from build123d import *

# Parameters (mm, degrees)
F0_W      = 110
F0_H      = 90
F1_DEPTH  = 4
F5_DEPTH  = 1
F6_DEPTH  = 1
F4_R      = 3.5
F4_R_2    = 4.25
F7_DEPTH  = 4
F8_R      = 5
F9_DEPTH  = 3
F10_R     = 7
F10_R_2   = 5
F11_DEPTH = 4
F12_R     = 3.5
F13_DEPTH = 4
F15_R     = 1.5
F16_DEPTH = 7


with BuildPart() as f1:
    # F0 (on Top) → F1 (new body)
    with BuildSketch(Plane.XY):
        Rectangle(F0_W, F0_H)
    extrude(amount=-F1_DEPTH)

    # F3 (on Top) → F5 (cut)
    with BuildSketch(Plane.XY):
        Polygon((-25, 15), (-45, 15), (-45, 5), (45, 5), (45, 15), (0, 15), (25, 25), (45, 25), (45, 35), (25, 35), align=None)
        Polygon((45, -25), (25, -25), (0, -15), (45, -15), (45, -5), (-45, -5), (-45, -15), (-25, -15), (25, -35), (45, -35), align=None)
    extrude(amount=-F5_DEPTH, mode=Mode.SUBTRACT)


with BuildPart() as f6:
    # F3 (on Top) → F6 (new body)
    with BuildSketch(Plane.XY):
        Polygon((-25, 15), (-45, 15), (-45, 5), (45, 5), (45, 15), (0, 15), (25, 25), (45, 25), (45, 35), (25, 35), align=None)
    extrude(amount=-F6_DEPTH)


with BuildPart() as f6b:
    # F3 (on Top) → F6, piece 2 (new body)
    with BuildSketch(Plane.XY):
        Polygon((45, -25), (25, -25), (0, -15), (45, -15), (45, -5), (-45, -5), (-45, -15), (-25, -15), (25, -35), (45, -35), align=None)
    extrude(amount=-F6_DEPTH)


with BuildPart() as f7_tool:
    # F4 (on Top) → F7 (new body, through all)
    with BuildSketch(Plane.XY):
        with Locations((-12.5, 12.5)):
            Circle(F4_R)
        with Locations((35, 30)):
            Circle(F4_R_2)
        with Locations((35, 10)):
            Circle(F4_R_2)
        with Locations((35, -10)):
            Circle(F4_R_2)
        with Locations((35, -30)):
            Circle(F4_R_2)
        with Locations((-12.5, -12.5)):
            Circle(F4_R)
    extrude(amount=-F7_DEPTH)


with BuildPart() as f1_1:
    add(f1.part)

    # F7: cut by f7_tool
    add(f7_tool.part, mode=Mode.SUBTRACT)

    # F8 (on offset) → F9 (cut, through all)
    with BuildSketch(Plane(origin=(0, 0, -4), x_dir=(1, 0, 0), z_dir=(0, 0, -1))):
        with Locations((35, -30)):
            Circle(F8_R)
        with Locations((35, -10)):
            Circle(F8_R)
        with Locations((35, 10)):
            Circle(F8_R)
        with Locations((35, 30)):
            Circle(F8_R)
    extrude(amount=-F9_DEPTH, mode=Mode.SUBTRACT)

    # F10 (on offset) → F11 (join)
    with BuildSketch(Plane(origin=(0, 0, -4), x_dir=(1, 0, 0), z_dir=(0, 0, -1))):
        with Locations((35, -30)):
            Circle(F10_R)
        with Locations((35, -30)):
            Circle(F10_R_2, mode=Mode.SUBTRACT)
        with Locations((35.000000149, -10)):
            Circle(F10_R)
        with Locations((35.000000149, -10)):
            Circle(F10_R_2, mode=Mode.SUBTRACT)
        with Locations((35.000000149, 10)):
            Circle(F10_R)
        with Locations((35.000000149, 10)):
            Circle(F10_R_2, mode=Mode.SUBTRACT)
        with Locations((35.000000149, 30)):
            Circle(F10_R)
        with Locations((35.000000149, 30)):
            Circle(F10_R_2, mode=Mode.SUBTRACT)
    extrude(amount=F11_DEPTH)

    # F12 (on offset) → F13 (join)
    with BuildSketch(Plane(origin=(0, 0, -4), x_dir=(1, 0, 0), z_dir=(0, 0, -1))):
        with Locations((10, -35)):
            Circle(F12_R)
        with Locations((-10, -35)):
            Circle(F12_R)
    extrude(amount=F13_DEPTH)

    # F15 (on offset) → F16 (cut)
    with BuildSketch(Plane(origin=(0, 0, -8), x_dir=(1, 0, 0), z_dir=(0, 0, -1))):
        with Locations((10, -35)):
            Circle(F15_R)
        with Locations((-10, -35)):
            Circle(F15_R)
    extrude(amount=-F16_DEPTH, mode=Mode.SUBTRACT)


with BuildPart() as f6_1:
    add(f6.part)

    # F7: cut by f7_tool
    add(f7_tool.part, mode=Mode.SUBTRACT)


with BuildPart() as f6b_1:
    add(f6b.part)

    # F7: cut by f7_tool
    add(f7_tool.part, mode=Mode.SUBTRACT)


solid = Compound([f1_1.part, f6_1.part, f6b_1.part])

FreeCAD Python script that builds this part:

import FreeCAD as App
import Part
import Sketcher

V = App.Vector
Q = App.Units.Quantity


def add_polygon(sketch, points):
    """Adds a closed chain of lines whose ends are joined by coincident constraints."""
    first, n = sketch.GeometryCount, len(points)
    for a, b in zip(points, points[1:] + points[:1]):
        sketch.addGeometry(Part.LineSegment(App.Vector(*a, 0), App.Vector(*b, 0)), False)
    for i in range(n):
        sketch.addConstraint(Sketcher.Constraint("Coincident", first + i, 2, first + (i + 1) % n, 1))

doc = App.newDocument("Part")
params = doc.addObject("Spreadsheet::Sheet", "Params")
for row, (alias, value) in enumerate([
    ("sketch1_width", "110 mm"),
    ("sketch1_height", "90 mm"),
    ("pad1_length", "4 mm"),
    ("sketch2_width", "20 mm"),
    ("sketch2_width2", "90 mm"),
    ("sketch2_height", "10 mm"),
    ("pocket1_length", "1 mm"),
    ("sketch3_width", "20 mm"),
    ("sketch3_width2", "90 mm"),
    ("sketch3_height", "10 mm"),
    ("pad2_length", "1 mm"),
    ("sketch4_width", "20 mm"),
    ("sketch4_width2", "45 mm"),
    ("sketch4_height", "10 mm"),
    ("pad3_length", "1 mm"),
    ("sketch5_diameter", "7 mm"),
    ("sketch5_diameter2", "8.5 mm"),
    ("pad4_length", "4 mm"),
    ("sketch6_diameter", "10 mm"),
    ("sketch7_diameter", "14 mm"),
    ("sketch7_diameter2", "10 mm"),
    ("pad5_length", "4 mm"),
    ("sketch8_diameter", "7 mm"),
    ("pad6_length", "4 mm"),
    ("sketch9_diameter", "3 mm"),
    ("pocket3_length", "7 mm"),
], start=1):
    params.set(f"A{row}", alias)
    params.set(f"B{row}", "=" + value)
    params.setAlias(f"B{row}", alias)

body = doc.addObject("PartDesign::Body", "Body")

# Sketch on XY plane
sketch1 = body.newObject("Sketcher::SketchObject", "Sketch")
sketch1.AttachmentSupport = (doc.getObject("XY_Plane"), [""])
sketch1.MapMode = "FlatFace"
add_polygon(sketch1, [(-55, 45), (-55, -45), (55, -45), (55, 45)])  # lines 0-3
sketch1.addConstraint(Sketcher.Constraint("Vertical", 0))
sketch1.addConstraint(Sketcher.Constraint("Horizontal", 1))
sketch1.addConstraint(Sketcher.Constraint("Vertical", 2))
sketch1.addConstraint(Sketcher.Constraint("Horizontal", 3))
sketch1.addConstraint(Sketcher.Constraint("Symmetric", 0, 2, 2, 2, -1, 1))
sketch1.addConstraint(Sketcher.Constraint("DistanceX", 1, 1, 1, 2, Q("110 mm")))
sketch1.addConstraint(Sketcher.Constraint("DistanceY", 0, 2, 0, 1, Q("90 mm")))
sketch1.setExpression("Constraints[9]", "Params.sketch1_width")
sketch1.setExpression("Constraints[10]", "Params.sketch1_height")
pad1 = body.newObject("PartDesign::Pad", "Pad")
pad1.Profile = sketch1
pad1.setExpression("Length", "Params.pad1_length")
pad1.Reversed = True

# Sketch on XY plane
sketch2 = body.newObject("Sketcher::SketchObject", "Sketch001")
sketch2.AttachmentSupport = (doc.getObject("XY_Plane"), [""])
sketch2.MapMode = "FlatFace"
add_polygon(sketch2, [(-25, 15), (-45, 15), (-45, 5), (45, 5), (45, 15), (0, 15), (25, 25), (45, 25), (45, 35), (25, 35)])  # lines 0-9
add_polygon(sketch2, [(45, -25), (25, -25), (0, -15), (45, -15), (45, -5), (-45, -5), (-45, -15), (-25, -15), (25, -35), (45, -35)])  # lines 10-19
sketch2.addConstraint(Sketcher.Constraint("Horizontal", 0))
sketch2.addConstraint(Sketcher.Constraint("Vertical", 1))
sketch2.addConstraint(Sketcher.Constraint("Horizontal", 2))
sketch2.addConstraint(Sketcher.Constraint("Vertical", 3))
sketch2.addConstraint(Sketcher.Constraint("Horizontal", 4))
sketch2.addConstraint(Sketcher.Constraint("Horizontal", 6))
sketch2.addConstraint(Sketcher.Constraint("Vertical", 7))
sketch2.addConstraint(Sketcher.Constraint("Horizontal", 8))
sketch2.addConstraint(Sketcher.Constraint("Horizontal", 10))
sketch2.addConstraint(Sketcher.Constraint("Horizontal", 12))
sketch2.addConstraint(Sketcher.Constraint("Vertical", 13))
sketch2.addConstraint(Sketcher.Constraint("Horizontal", 14))
sketch2.addConstraint(Sketcher.Constraint("Vertical", 15))
sketch2.addConstraint(Sketcher.Constraint("Horizontal", 16))
sketch2.addConstraint(Sketcher.Constraint("Horizontal", 18))
sketch2.addConstraint(Sketcher.Constraint("Vertical", 19))
sketch2.addConstraint(Sketcher.Constraint("Symmetric", 4, 2, 11, 2, -1, 1))
sketch2.addConstraint(Sketcher.Constraint("Symmetric", 0, 2, 12, 2, -1, 1))
sketch2.addConstraint(Sketcher.Constraint("Symmetric", 2, 2, 14, 2, -1, 1))
sketch2.addConstraint(Sketcher.Constraint("Symmetric", 12, 2, 15, 2, -2))
sketch2.addConstraint(Sketcher.Constraint("Symmetric", 5, 2, 10, 2, -1))
sketch2.addConstraint(Sketcher.Constraint("Symmetric", 8, 2, 17, 2, -1))
sketch2.addConstraint(Sketcher.Constraint("PointOnObject", 4, 2, -2))
sketch2.addConstraint(Sketcher.Constraint("Parallel", 5, 9))
sketch2.addConstraint(Sketcher.Constraint("Parallel", 11, 17))
sketch2.addConstraint(Sketcher.Constraint("Vertical", 3, 2, 6, 2))
sketch2.addConstraint(Sketcher.Constraint("Vertical", 5, 2, 8, 2))
sketch2.addConstraint(Sketcher.Constraint("Vertical", 13, 2, 18, 2))
sketch2.addConstraint(Sketcher.Constraint("Equal", 0, 6))
sketch2.addConstraint(Sketcher.Constraint("Equal", 3, 7))
sketch2.addConstraint(Sketcher.Constraint("DistanceX", 0, 2, 0, 1, Q("20 mm")))
sketch2.addConstraint(Sketcher.Constraint("DistanceX", 2, 1, 2, 2, Q("90 mm")))
sketch2.addConstraint(Sketcher.Constraint("DistanceY", 1, 2, 1, 1, Q("10 mm")))
sketch2.addConstraint(Sketcher.Constraint("DistanceY", -1, 1, 0, 2, Q("15 mm")))
sketch2.setExpression("Constraints[50]", "Params.sketch2_width")
sketch2.setExpression("Constraints[51]", "Params.sketch2_width2")
sketch2.setExpression("Constraints[52]", "Params.sketch2_height")
pocket1 = body.newObject("PartDesign::Pocket", "Pocket")
pocket1.Profile = sketch2
pocket1.setExpression("Length", "Params.pocket1_length")
body2 = doc.addObject("PartDesign::Body", "Body001")

# Sketch on XY plane
sketch3 = body2.newObject("Sketcher::SketchObject", "Sketch002")
sketch3.AttachmentSupport = (doc.getObject("XY_Plane001"), [""])
sketch3.MapMode = "FlatFace"
add_polygon(sketch3, [(-25, 15), (-45, 15), (-45, 5), (45, 5), (45, 15), (0, 15), (25, 25), (45, 25), (45, 35), (25, 35)])  # lines 0-9
sketch3.addConstraint(Sketcher.Constraint("Horizontal", 0))
sketch3.addConstraint(Sketcher.Constraint("Vertical", 1))
sketch3.addConstraint(Sketcher.Constraint("Horizontal", 2))
sketch3.addConstraint(Sketcher.Constraint("Vertical", 3))
sketch3.addConstraint(Sketcher.Constraint("Horizontal", 4))
sketch3.addConstraint(Sketcher.Constraint("Horizontal", 6))
sketch3.addConstraint(Sketcher.Constraint("Vertical", 7))
sketch3.addConstraint(Sketcher.Constraint("Horizontal", 8))
sketch3.addConstraint(Sketcher.Constraint("Symmetric", 0, 2, 3, 2, -2))
sketch3.addConstraint(Sketcher.Constraint("PointOnObject", 4, 2, -2))
sketch3.addConstraint(Sketcher.Constraint("Parallel", 5, 9))
sketch3.addConstraint(Sketcher.Constraint("Vertical", 3, 2, 6, 2))
sketch3.addConstraint(Sketcher.Constraint("Vertical", 5, 2, 8, 2))
sketch3.addConstraint(Sketcher.Constraint("Equal", 0, 6))
sketch3.addConstraint(Sketcher.Constraint("Equal", 3, 7))
sketch3.addConstraint(Sketcher.Constraint("DistanceX", 0, 2, 0, 1, Q("20 mm")))
sketch3.addConstraint(Sketcher.Constraint("DistanceX", 2, 1, 2, 2, Q("90 mm")))
sketch3.addConstraint(Sketcher.Constraint("DistanceY", 1, 2, 1, 1, Q("10 mm")))
sketch3.addConstraint(Sketcher.Constraint("DistanceY", -1, 1, 0, 2, Q("15 mm")))
sketch3.setExpression("Constraints[25]", "Params.sketch3_width")
sketch3.setExpression("Constraints[26]", "Params.sketch3_width2")
sketch3.setExpression("Constraints[27]", "Params.sketch3_height")
pad2 = body2.newObject("PartDesign::Pad", "Pad001")
pad2.Profile = sketch3
pad2.setExpression("Length", "Params.pad2_length")
pad2.Reversed = True
body3 = doc.addObject("PartDesign::Body", "Body002")

# Sketch on XY plane
sketch4 = body3.newObject("Sketcher::SketchObject", "Sketch003")
sketch4.AttachmentSupport = (doc.getObject("XY_Plane002"), [""])
sketch4.MapMode = "FlatFace"
add_polygon(sketch4, [(45, -25), (25, -25), (0, -15), (45, -15), (45, -5), (-45, -5), (-45, -15), (-25, -15), (25, -35), (45, -35)])  # lines 0-9
sketch4.addConstraint(Sketcher.Constraint("Horizontal", 0))
sketch4.addConstraint(Sketcher.Constraint("Horizontal", 2))
sketch4.addConstraint(Sketcher.Constraint("Vertical", 3))
sketch4.addConstraint(Sketcher.Constraint("Horizontal", 4))
sketch4.addConstraint(Sketcher.Constraint("Vertical", 5))
sketch4.addConstraint(Sketcher.Constraint("Horizontal", 6))
sketch4.addConstraint(Sketcher.Constraint("Horizontal", 8))
sketch4.addConstraint(Sketcher.Constraint("Vertical", 9))
sketch4.addConstraint(Sketcher.Constraint("Symmetric", 2, 2, 5, 2, -2))
sketch4.addConstraint(Sketcher.Constraint("PointOnObject", 1, 2, -2))
sketch4.addConstraint(Sketcher.Constraint("Parallel", 1, 7))
sketch4.addConstraint(Sketcher.Constraint("Vertical", 0, 2, 7, 2))
sketch4.addConstraint(Sketcher.Constraint("Vertical", 3, 2, 8, 2))
sketch4.addConstraint(Sketcher.Constraint("Equal", 0, 6))
sketch4.addConstraint(Sketcher.Constraint("Equal", 5, 9))
sketch4.addConstraint(Sketcher.Constraint("DistanceX", 0, 2, 0, 1, Q("20 mm")))
sketch4.addConstraint(Sketcher.Constraint("DistanceX", 2, 1, 2, 2, Q("45 mm")))
sketch4.addConstraint(Sketcher.Constraint("DistanceY", 3, 1, 3, 2, Q("10 mm")))
sketch4.addConstraint(Sketcher.Constraint("DistanceY", 0, 2, -1, 1, Q("25 mm")))
sketch4.setExpression("Constraints[25]", "Params.sketch4_width")
sketch4.setExpression("Constraints[26]", "Params.sketch4_width2")
sketch4.setExpression("Constraints[27]", "Params.sketch4_height")
pad3 = body3.newObject("PartDesign::Pad", "Pad002")
pad3.Profile = sketch4
pad3.setExpression("Length", "Params.pad3_length")
pad3.Reversed = True
body4 = doc.addObject("PartDesign::Body", "Body003")
body4.AllowCompound = True

# Sketch on XY plane
sketch5 = body4.newObject("Sketcher::SketchObject", "Sketch004")
sketch5.AttachmentSupport = (doc.getObject("XY_Plane003"), [""])
sketch5.MapMode = "FlatFace"
sketch5.addGeometry(Part.Circle(V(-12.5, 12.5, 0), V(0, 0, 1), 3.5), False)
sketch5.addGeometry(Part.Circle(V(35, 30, 0), V(0, 0, 1), 4.25), False)
sketch5.addGeometry(Part.Circle(V(35, 10, 0), V(0, 0, 1), 4.25), False)
sketch5.addGeometry(Part.Circle(V(35, -10, 0), V(0, 0, 1), 4.25), False)
sketch5.addGeometry(Part.Circle(V(35, -30, 0), V(0, 0, 1), 4.25), False)
sketch5.addGeometry(Part.Circle(V(-12.5, -12.5, 0), V(0, 0, 1), 3.5), False)
sketch5.addConstraint(Sketcher.Constraint("Equal", 1, 2))
sketch5.addConstraint(Sketcher.Constraint("Equal", 2, 3))
sketch5.addConstraint(Sketcher.Constraint("Equal", 3, 4))
sketch5.addConstraint(Sketcher.Constraint("Equal", 0, 5))
sketch5.addConstraint(Sketcher.Constraint("Symmetric", 2, 3, 3, 3, -1))
sketch5.addConstraint(Sketcher.Constraint("Symmetric", 1, 3, 4, 3, -1))
sketch5.addConstraint(Sketcher.Constraint("Symmetric", 0, 3, 5, 3, -1))
sketch5.addConstraint(Sketcher.Constraint("Vertical", 1, 3, 2, 3))
sketch5.addConstraint(Sketcher.Constraint("Diameter", 0, Q("7 mm")))
sketch5.addConstraint(Sketcher.Constraint("Diameter", 1, Q("8.5 mm")))
sketch5.addConstraint(Sketcher.Constraint("DistanceX", -1, 1, 1, 3, Q("35 mm")))
sketch5.addConstraint(Sketcher.Constraint("DistanceY", -1, 1, 1, 3, Q("30 mm")))
sketch5.addConstraint(Sketcher.Constraint("DistanceY", -1, 1, 2, 3, Q("10 mm")))
sketch5.addConstraint(Sketcher.Constraint("DistanceY", 5, 3, 0, 3, Q("25 mm")))
sketch5.addConstraint(Sketcher.Constraint("DistanceX", 0, 3, -1, 1, Q("12.5 mm")))
sketch5.setExpression("Constraints[8]", "Params.sketch5_diameter")
sketch5.setExpression("Constraints[9]", "Params.sketch5_diameter2")
pad4 = body4.newObject("PartDesign::Pad", "Pad003")
pad4.Profile = sketch5
pad4.setExpression("Length", "Params.pad4_length")
pad4.Reversed = True
doc.recompute()

body5 = doc.addObject("PartDesign::Body", "Body004")
body5.BaseFeature = body4
boolean = body.newObject("PartDesign::Boolean", "Boolean")
boolean.Type = "Cut"
boolean.addObjects([body5])
doc.recompute()

# Sketch on XY plane
sketch6 = body.newObject("Sketcher::SketchObject", "Sketch005")
sketch6.AttachmentSupport = (doc.getObject("XY_Plane"), [""])
sketch6.MapMode = "FlatFace"
sketch6.AttachmentOffset = App.Placement(V(0, 0, -4), App.Rotation())
sketch6.addGeometry(Part.Circle(V(35, 30, 0), V(0, 0, 1), 5), False)
sketch6.addGeometry(Part.Circle(V(35, 10, 0), V(0, 0, 1), 5), False)
sketch6.addGeometry(Part.Circle(V(35, -10, 0), V(0, 0, 1), 5), False)
sketch6.addGeometry(Part.Circle(V(35, -30, 0), V(0, 0, 1), 5), False)
sketch6.addConstraint(Sketcher.Constraint("Equal", 0, 1))
sketch6.addConstraint(Sketcher.Constraint("Equal", 1, 2))
sketch6.addConstraint(Sketcher.Constraint("Equal", 2, 3))
sketch6.addConstraint(Sketcher.Constraint("Symmetric", 1, 3, 2, 3, -1))
sketch6.addConstraint(Sketcher.Constraint("Symmetric", 0, 3, 3, 3, -1))
sketch6.addConstraint(Sketcher.Constraint("Vertical", 0, 3, 1, 3))
sketch6.addConstraint(Sketcher.Constraint("Diameter", 0, Q("10 mm")))
sketch6.addConstraint(Sketcher.Constraint("DistanceX", -1, 1, 0, 3, Q("35 mm")))
sketch6.addConstraint(Sketcher.Constraint("DistanceY", -1, 1, 0, 3, Q("30 mm")))
sketch6.addConstraint(Sketcher.Constraint("DistanceY", -1, 1, 1, 3, Q("10 mm")))
sketch6.setExpression("Constraints[6]", "Params.sketch6_diameter")
pocket2 = body.newObject("PartDesign::Pocket", "Pocket001")
pocket2.Profile = sketch6
pocket2.Type = "ThroughAll"
pocket2.Reversed = True

# Sketch on XY plane
sketch7 = body.newObject("Sketcher::SketchObject", "Sketch006")
sketch7.AttachmentSupport = (doc.getObject("XY_Plane"), [""])
sketch7.MapMode = "FlatFace"
sketch7.AttachmentOffset = App.Placement(V(0, 0, -4), App.Rotation())
sketch7.addGeometry(Part.Circle(V(35, 30, 0), V(0, 0, 1), 7), False)
sketch7.addGeometry(Part.Circle(V(35, 30, 0), V(0, 0, 1), 5), False)
sketch7.addGeometry(Part.Circle(V(35, 10, 0), V(0, 0, 1), 7), False)
sketch7.addGeometry(Part.Circle(V(35, 10, 0), V(0, 0, 1), 5), False)
sketch7.addGeometry(Part.Circle(V(35, -10, 0), V(0, 0, 1), 7), False)
sketch7.addGeometry(Part.Circle(V(35, -10, 0), V(0, 0, 1), 5), False)
sketch7.addGeometry(Part.Circle(V(35, -30, 0), V(0, 0, 1), 7), False)
sketch7.addGeometry(Part.Circle(V(35, -30, 0), V(0, 0, 1), 5), False)
sketch7.addConstraint(Sketcher.Constraint("Coincident", 1, 3, 0, 3))
sketch7.addConstraint(Sketcher.Constraint("Coincident", 3, 3, 2, 3))
sketch7.addConstraint(Sketcher.Constraint("Coincident", 5, 3, 4, 3))
sketch7.addConstraint(Sketcher.Constraint("Coincident", 7, 3, 6, 3))
sketch7.addConstraint(Sketcher.Constraint("Equal", 0, 2))
sketch7.addConstraint(Sketcher.Constraint("Equal", 1, 3))
sketch7.addConstraint(Sketcher.Constraint("Equal", 2, 4))
sketch7.addConstraint(Sketcher.Constraint("Equal", 3, 5))
sketch7.addConstraint(Sketcher.Constraint("Equal", 4, 6))
sketch7.addConstraint(Sketcher.Constraint("Equal", 5, 7))
sketch7.addConstraint(Sketcher.Constraint("Symmetric", 2, 3, 4, 3, -1))
sketch7.addConstraint(Sketcher.Constraint("Symmetric", 0, 3, 6, 3, -1))
sketch7.addConstraint(Sketcher.Constraint("Vertical", 1, 3, 2, 3))
sketch7.addConstraint(Sketcher.Constraint("Diameter", 0, Q("14 mm")))
sketch7.addConstraint(Sketcher.Constraint("Diameter", 1, Q("10 mm")))
sketch7.addConstraint(Sketcher.Constraint("DistanceX", -1, 1, 0, 3, Q("35 mm")))
sketch7.addConstraint(Sketcher.Constraint("DistanceY", -1, 1, 0, 3, Q("30 mm")))
sketch7.addConstraint(Sketcher.Constraint("DistanceY", -1, 1, 2, 3, Q("10 mm")))
sketch7.setExpression("Constraints[13]", "Params.sketch7_diameter")
sketch7.setExpression("Constraints[14]", "Params.sketch7_diameter2")
pad5 = body.newObject("PartDesign::Pad", "Pad004")
pad5.Profile = sketch7
pad5.setExpression("Length", "Params.pad5_length")
pad5.Reversed = True

# Sketch on XY plane
sketch8 = body.newObject("Sketcher::SketchObject", "Sketch007")
sketch8.AttachmentSupport = (doc.getObject("XY_Plane"), [""])
sketch8.MapMode = "FlatFace"
sketch8.AttachmentOffset = App.Placement(V(0, 0, -4), App.Rotation())
sketch8.addGeometry(Part.Circle(V(10, 35, 0), V(0, 0, 1), 3.5), False)
sketch8.addGeometry(Part.Circle(V(-10, 35, 0), V(0, 0, 1), 3.5), False)
sketch8.addConstraint(Sketcher.Constraint("Equal", 0, 1))
sketch8.addConstraint(Sketcher.Constraint("Symmetric", 0, 3, 1, 3, -2))
sketch8.addConstraint(Sketcher.Constraint("Diameter", 0, Q("7 mm")))
sketch8.addConstraint(Sketcher.Constraint("DistanceX", -1, 1, 0, 3, Q("10 mm")))
sketch8.addConstraint(Sketcher.Constraint("DistanceY", -1, 1, 0, 3, Q("35 mm")))
sketch8.setExpression("Constraints[2]", "Params.sketch8_diameter")
pad6 = body.newObject("PartDesign::Pad", "Pad005")
pad6.Profile = sketch8
pad6.setExpression("Length", "Params.pad6_length")
pad6.Reversed = True

# Sketch on XY plane
sketch9 = body.newObject("Sketcher::SketchObject", "Sketch008")
sketch9.AttachmentSupport = (doc.getObject("XY_Plane"), [""])
sketch9.MapMode = "FlatFace"
sketch9.AttachmentOffset = App.Placement(V(0, 0, -8), App.Rotation())
sketch9.addGeometry(Part.Circle(V(10, 35, 0), V(0, 0, 1), 1.5), False)
sketch9.addGeometry(Part.Circle(V(-10, 35, 0), V(0, 0, 1), 1.5), False)
sketch9.addConstraint(Sketcher.Constraint("Equal", 0, 1))
sketch9.addConstraint(Sketcher.Constraint("Symmetric", 0, 3, 1, 3, -2))
sketch9.addConstraint(Sketcher.Constraint("Diameter", 0, Q("3 mm")))
sketch9.addConstraint(Sketcher.Constraint("DistanceX", -1, 1, 0, 3, Q("10 mm")))
sketch9.addConstraint(Sketcher.Constraint("DistanceY", -1, 1, 0, 3, Q("35 mm")))
sketch9.setExpression("Constraints[2]", "Params.sketch9_diameter")
pocket3 = body.newObject("PartDesign::Pocket", "Pocket002")
pocket3.Profile = sketch9
pocket3.setExpression("Length", "Params.pocket3_length")
pocket3.Reversed = True
doc.recompute()

body6 = doc.addObject("PartDesign::Body", "Body005")
body6.BaseFeature = body4
boolean2 = body2.newObject("PartDesign::Boolean", "Boolean001")
boolean2.Type = "Cut"
boolean2.addObjects([body6])
doc.recompute()

boolean3 = body3.newObject("PartDesign::Boolean", "Boolean002")
boolean3.Type = "Cut"
boolean3.addObjects([body4])

doc.recompute()
